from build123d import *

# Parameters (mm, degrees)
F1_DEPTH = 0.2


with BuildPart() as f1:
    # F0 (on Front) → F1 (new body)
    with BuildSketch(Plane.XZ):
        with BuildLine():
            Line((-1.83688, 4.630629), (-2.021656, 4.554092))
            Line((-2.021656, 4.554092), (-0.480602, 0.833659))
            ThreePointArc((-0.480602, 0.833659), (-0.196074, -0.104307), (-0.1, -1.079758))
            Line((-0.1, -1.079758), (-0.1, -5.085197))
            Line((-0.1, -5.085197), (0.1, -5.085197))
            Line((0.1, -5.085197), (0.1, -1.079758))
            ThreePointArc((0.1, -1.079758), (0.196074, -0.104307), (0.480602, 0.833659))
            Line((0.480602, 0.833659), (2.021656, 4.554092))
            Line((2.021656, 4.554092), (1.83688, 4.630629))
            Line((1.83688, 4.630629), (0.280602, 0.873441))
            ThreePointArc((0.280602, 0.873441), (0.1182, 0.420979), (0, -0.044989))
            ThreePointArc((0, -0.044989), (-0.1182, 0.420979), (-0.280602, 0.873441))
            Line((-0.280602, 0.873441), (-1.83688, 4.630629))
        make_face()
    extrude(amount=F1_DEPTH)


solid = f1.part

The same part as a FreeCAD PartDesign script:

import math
import FreeCAD as App
import Part
import Sketcher

V = App.Vector
Q = App.Units.Quantity

doc = App.newDocument("Part")
body = doc.addObject("PartDesign::Body", "Body")

# Sketch on XZ plane
sketch1 = body.newObject("Sketcher::SketchObject", "Sketch")
sketch1.AttachmentSupport = (doc.getObject("XZ_Plane"), [""])
sketch1.MapMode = "FlatFace"
sketch1.addGeometry([
    Part.LineSegment(V(-1.84, 4.63, 0), V(-2.02, 4.55, 0)),  # 0
    Part.LineSegment(V(-2.02, 4.55, 0), V(-0.48, 0.83, 0)),  # 1
    Part.ArcOfCircle(Part.Circle(V(-5.1, -1.08, 0), V(0, 0, 1), 5), math.radians(0), math.radians(22)),  # 2
    Part.LineSegment(V(-0.1, -1.08, 0), V(-0.1, -5.09, 0)),  # 3
    Part.LineSegment(V(-0.1, -5.09, 0), V(0.1, -5.09, 0)),  # 4
    Part.LineSegment(V(0.1, -5.09, 0), V(0.1, -1.08, 0)),  # 5
    Part.ArcOfCircle(Part.Circle(V(5.1, -1.08, 0), V(0, 0, 1), 5), math.radians(158), math.radians(180)),  # 6
    Part.LineSegment(V(0.48, 0.83, 0), V(2.02, 4.55, 0)),  # 7
    Part.LineSegment(V(2.02, 4.55, 0), V(1.84, 4.63, 0)),  # 8
    Part.LineSegment(V(1.84, 4.63, 0), V(0.28, 0.87, 0)),  # 9
    Part.ArcOfCircle(Part.Circle(V(4.9, -1.04, 0), V(0, 0, 1), 5), math.radians(157.5), math.radians(168.52)),  # 10
    Part.ArcOfCircle(Part.Circle(V(-4.9, -1.04, 0), V(0, 0, 1), 5), math.radians(11.48), math.radians(22.5)),  # 11
    Part.LineSegment(V(-0.28, 0.87, 0), V(-1.84, 4.63, 0)),  # 12
], False)
sketch1.addConstraint([
    Sketcher.Constraint("Coincident", 0, 2, 1, 1),
    Sketcher.Constraint("Tangent", 1, 2, 2, 2),
    Sketcher.Constraint("Tangent", 2, 1, 3, 1),
    Sketcher.Constraint("Coincident", 3, 2, 4, 1),
    Sketcher.Constraint("Coincident", 4, 2, 5, 1),
    Sketcher.Constraint("Tangent", 5, 2, 6, 2),
    Sketcher.Constraint("Tangent", 6, 1, 7, 1),
    Sketcher.Constraint("Coincident", 7, 2, 8, 1),
    Sketcher.Constraint("Coincident", 8, 2, 9, 1),
    Sketcher.Constraint("Tangent", 9, 2, 10, 1),
    Sketcher.Constraint("Coincident", 10, 2, 11, 1),
    Sketcher.Constraint("Tangent", 11, 2, 12, 1),
    Sketcher.Constraint("Coincident", 12, 2, 0, 1),
    Sketcher.Constraint("Vertical", 3),
    Sketcher.Constraint("Horizontal", 4),
    Sketcher.Constraint("Vertical", 5),
    Sketcher.Constraint("Equal", 2, 6),
    Sketcher.Constraint("Equal", 10, 11),
    Sketcher.Constraint("Symmetric", 2, 3, 6, 3, -2),
    Sketcher.Constraint("Symmetric", 10, 3, 11, 3, -2),
    Sketcher.Constraint("Symmetric", 0, 2, 7, 2, -2),
    Sketcher.Constraint("Symmetric", 8, 2, 12, 2, -2),
    Sketcher.Constraint("Perpendicular", 0, 1),
    Sketcher.Constraint("Perpendicular", 8, 9),
    Sketcher.Constraint("Radius", 10, Q("5.000001 mm")),
    Sketcher.Constraint("DistanceX", 4, 1, 4, 2, Q("0.2 mm")),
    Sketcher.Constraint("Angle", 1, Q("-67.499997 deg")),
    Sketcher.Constraint("DistanceX", 2, 1, 10, 3, Q("5.000002 mm")),
    Sketcher.Constraint("Distance", 0, Q("0.2 mm")),
    Sketcher.Constraint("DistanceX", 9, 2, 6, 1, Q("0.2 mm")),
    Sketcher.Constraint("DistanceY", 3, 2, 3, 1, Q("4.005439 mm")),
    Sketcher.Constraint("Distance", 9, Q("4.066751 mm")),
    Sketcher.Constraint("DistanceY", -1, 1, 0, 2, Q("4.554092 mm")),
])
pad1 = body.newObject("PartDesign::Pad", "Pad")
pad1.Profile = sketch1
pad1.Length = 0.2

doc.recompute()
